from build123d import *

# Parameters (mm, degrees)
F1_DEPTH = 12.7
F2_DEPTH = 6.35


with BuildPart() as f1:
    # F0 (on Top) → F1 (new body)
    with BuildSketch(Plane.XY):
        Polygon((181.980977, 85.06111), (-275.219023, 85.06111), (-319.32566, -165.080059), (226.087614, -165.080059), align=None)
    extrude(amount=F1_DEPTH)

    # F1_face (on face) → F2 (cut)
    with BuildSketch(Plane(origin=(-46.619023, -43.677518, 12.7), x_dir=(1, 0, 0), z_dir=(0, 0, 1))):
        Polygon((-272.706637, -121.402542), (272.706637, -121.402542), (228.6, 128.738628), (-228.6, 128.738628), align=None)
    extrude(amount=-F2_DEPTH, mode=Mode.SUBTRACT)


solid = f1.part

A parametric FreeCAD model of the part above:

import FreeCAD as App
import Part
import Sketcher
from FreeCAD import Vector
Q = App.Units.Quantity

doc = App.newDocument("Part")
body = doc.addObject("PartDesign::Body", "Body")

sketch1 = body.newObject("Sketcher::SketchObject", "Sketch")
sketch1.AttachmentSupport = (doc.getObject("XY_Plane"), [""])
sketch1.MapMode = "FlatFace"
sketch1.addGeometry(Part.LineSegment(Vector(181.980977, 85.06111, 0), Vector(-275.219023, 85.06111, 0)), False)
sketch1.addGeometry(Part.LineSegment(Vector(-275.219023, 85.06111, 0), Vector(-319.32566, -165.080059, 0)), False)
sketch1.addGeometry(Part.LineSegment(Vector(-319.32566, -165.080059, 0), Vector(226.087614, -165.080059, 0)), False)
sketch1.addGeometry(Part.LineSegment(Vector(226.087614, -165.080059, 0), Vector(181.980977, 85.06111, 0)), False)
sketch1.addConstraint(Sketcher.Constraint("Coincident", 0, 2, 1, 1))
sketch1.addConstraint(Sketcher.Constraint("Coincident", 1, 2, 2, 1))
sketch1.addConstraint(Sketcher.Constraint("Coincident", 2, 2, 3, 1))
sketch1.addConstraint(Sketcher.Constraint("Coincident", 3, 2, 0, 1))
sketch1.addConstraint(Sketcher.Constraint("Horizontal", 0))
sketch1.addConstraint(Sketcher.Constraint("Horizontal", 2))
sketch1.addConstraint(Sketcher.Constraint("Equal", 1, 3))
sketch1.addConstraint(Sketcher.Constraint("DistanceX", 0, 2, 0, 1, Q("18 in")))
sketch1.addConstraint(Sketcher.Constraint("Distance", 1, Q("10 in")))
sketch1.addConstraint(Sketcher.Constraint("Angle", 1, Q("-100 deg")))
sketch1.addConstraint(Sketcher.Constraint("DistanceY", -1, 1, 0, 2, Q("85.06111 mm")))
sketch1.addConstraint(Sketcher.Constraint("DistanceX", 1, 2, -1, 1, Q("319.32566 mm")))
pad1 = body.newObject("PartDesign::Pad", "Pad")
pad1.Profile = sketch1
pad1.Length = Q("0.5 in")

sketch2 = body.newObject("Sketcher::SketchObject", "Sketch001")
sketch2.AttachmentSupport = (doc.getObject("XY_Plane"), [""])
sketch2.MapMode = "FlatFace"
sketch2.AttachmentOffset = App.Placement(Vector(0, 0, 0.5 * 25.4), App.Rotation())
sketch2.addGeometry(Part.LineSegment(Vector(-319.32566, -165.08006, 0), Vector(226.087614, -165.08006, 0)), False)
sketch2.addGeometry(Part.LineSegment(Vector(226.087614, -165.08006, 0), Vector(181.980977, 85.06111, 0)), False)
sketch2.addGeometry(Part.LineSegment(Vector(181.980977, 85.06111, 0), Vector(-275.219023, 85.06111, 0)), False)
sketch2.addGeometry(Part.LineSegment(Vector(-275.219023, 85.06111, 0), Vector(-319.32566, -165.08006, 0)), False)
sketch2.addConstraint(Sketcher.Constraint("Coincident", 0, 2, 1, 1))
sketch2.addConstraint(Sketcher.Constraint("Coincident", 1, 2, 2, 1))
sketch2.addConstraint(Sketcher.Constraint("Coincident", 2, 2, 3, 1))
sketch2.addConstraint(Sketcher.Constraint("Coincident", 3, 2, 0, 1))
sketch2.addConstraint(Sketcher.Constraint("Horizontal", 0))
sketch2.addConstraint(Sketcher.Constraint("Horizontal", 2))
sketch2.addConstraint(Sketcher.Constraint("Equal", 1, 3))
sketch2.addConstraint(Sketcher.Constraint("DistanceX", 2, 2, 2, 1, Q("18 in")))
sketch2.addConstraint(Sketcher.Constraint("Distance", 1, Q("10 in")))
sketch2.addConstraint(Sketcher.Constraint("Angle", 1, Q("100 deg")))
sketch2.addConstraint(Sketcher.Constraint("DistanceY", 0, 2, -1, 1, Q("165.08006 mm")))
sketch2.addConstraint(Sketcher.Constraint("DistanceX", 3, 2, -1, 1, Q("319.32566 mm")))
pocket1 = body.newObject("PartDesign::Pocket", "Pocket")
pocket1.Profile = sketch2
pocket1.Length = Q("0.25 in")

doc.recompute()
